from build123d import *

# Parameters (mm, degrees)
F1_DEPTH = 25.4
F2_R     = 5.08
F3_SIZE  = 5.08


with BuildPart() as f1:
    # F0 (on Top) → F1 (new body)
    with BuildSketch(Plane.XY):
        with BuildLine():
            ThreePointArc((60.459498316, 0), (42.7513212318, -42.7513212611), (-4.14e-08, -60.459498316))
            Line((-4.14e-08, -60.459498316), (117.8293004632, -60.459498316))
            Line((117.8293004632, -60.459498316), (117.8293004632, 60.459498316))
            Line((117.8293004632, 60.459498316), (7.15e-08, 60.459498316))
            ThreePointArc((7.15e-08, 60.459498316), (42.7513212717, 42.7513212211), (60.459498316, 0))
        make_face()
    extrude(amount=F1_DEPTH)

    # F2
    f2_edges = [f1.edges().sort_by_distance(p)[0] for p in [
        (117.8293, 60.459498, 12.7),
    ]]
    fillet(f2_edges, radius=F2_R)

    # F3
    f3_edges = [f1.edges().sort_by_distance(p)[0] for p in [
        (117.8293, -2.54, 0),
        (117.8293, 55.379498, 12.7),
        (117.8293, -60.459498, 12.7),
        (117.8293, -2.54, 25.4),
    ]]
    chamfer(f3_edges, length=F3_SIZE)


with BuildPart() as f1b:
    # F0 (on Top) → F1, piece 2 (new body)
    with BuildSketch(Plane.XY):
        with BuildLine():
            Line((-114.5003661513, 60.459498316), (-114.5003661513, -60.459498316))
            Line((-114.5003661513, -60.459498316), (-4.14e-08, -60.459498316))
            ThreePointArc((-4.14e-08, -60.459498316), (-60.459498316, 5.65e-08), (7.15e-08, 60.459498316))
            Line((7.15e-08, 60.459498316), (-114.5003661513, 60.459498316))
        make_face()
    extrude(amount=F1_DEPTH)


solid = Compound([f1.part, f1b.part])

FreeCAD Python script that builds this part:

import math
import FreeCAD as App
import Part
import Sketcher
from FreeCAD import Vector
Q = App.Units.Quantity


def edges_at(feature, points):
    """Names of the edges that pass closest to the given points."""
    edges = feature.Shape.Edges
    near = lambda p: min(range(len(edges)), key=lambda i: edges[i].distToShape(Part.Vertex(*p))[0])
    return sorted({f"Edge{near(p) + 1}" for p in points})

doc = App.newDocument("Part")
body = doc.addObject("PartDesign::Body", "Body")

sketch1 = body.newObject("Sketcher::SketchObject", "Sketch")
sketch1.AttachmentSupport = (doc.getObject("XY_Plane"), [""])
sketch1.MapMode = "FlatFace"
sketch1.addGeometry([
    Part.ArcOfCircle(Part.Circle(Vector(0, 0, 0), Vector(0, 0, 1), 60), math.radians(-90), math.radians(0)),
    Part.LineSegment(Vector(0, -60, 0), Vector(118, -60, 0)),
    Part.LineSegment(Vector(118, -60, 0), Vector(118, 60, 0)),
    Part.LineSegment(Vector(118, 60, 0), Vector(0, 60, 0)),
    Part.ArcOfCircle(Part.Circle(Vector(0, 0, 0), Vector(0, 0, 1), 60), math.radians(0), math.radians(90)),
], False)
sketch1.addConstraint([
    Sketcher.Constraint("Tangent", 0, 1, 1, 1),
    Sketcher.Constraint("Coincident", 1, 2, 2, 1),
    Sketcher.Constraint("Coincident", 2, 2, 3, 1),
    Sketcher.Constraint("Tangent", 3, 2, 4, 2),
    Sketcher.Constraint("Tangent", 4, 1, 0, 2),
    Sketcher.Constraint("Horizontal", 1),
    Sketcher.Constraint("Vertical", 2),
    Sketcher.Constraint("Horizontal", 3),
    Sketcher.Constraint("Coincident", 0, 3, -1, 1),
    Sketcher.Constraint("Equal", 0, 4),
    Sketcher.Constraint("PointOnObject", 4, 1, -1),
    Sketcher.Constraint("Radius", 0, Q("60.459498 mm")),
    Sketcher.Constraint("DistanceX", 1, 1, 1, 2, Q("117.829301 mm")),
])
pad1 = body.newObject("PartDesign::Pad", "Pad")
pad1.Profile = sketch1
pad1.Length = Q("1 in")
doc.recompute()

fillet = body.newObject("PartDesign::Fillet", "Fillet")
fillet.Base = (pad1, edges_at(pad1, [(117.829, 60.459, 12.7)]))
fillet.Radius = Q("0.2 in")
doc.recompute()

chamfer = body.newObject("PartDesign::Chamfer", "Chamfer")
chamfer.Base = (fillet, edges_at(fillet, [
    (117.829, -2.54, 0),
    (117.829, 55.379, 12.7),
    (117.829, -60.459, 12.7),
    (117.829, -2.54, 25.4),
]))
chamfer.Size = Q("0.2 in")
body2 = doc.addObject("PartDesign::Body", "Body001")

sketch2 = body2.newObject("Sketcher::SketchObject", "Sketch001")
sketch2.AttachmentSupport = (doc.getObject("XY_Plane001"), [""])
sketch2.MapMode = "FlatFace"
sketch2.addGeometry([
    Part.LineSegment(Vector(-115, 60, 0), Vector(-115, -60, 0)),
    Part.LineSegment(Vector(-115, -60, 0), Vector(0, -60, 0)),
    Part.ArcOfCircle(Part.Circle(Vector(0, 0, 0), Vector(0, 0, 1), 60), math.radians(90), math.radians(270)),
    Part.LineSegment(Vector(0, 60, 0), Vector(-115, 60, 0)),
], False)
sketch2.addConstraint([
    Sketcher.Constraint("Coincident", 0, 2, 1, 1),
    Sketcher.Constraint("Tangent", 1, 2, 2, 2),
    Sketcher.Constraint("Tangent", 2, 1, 3, 1),
    Sketcher.Constraint("Coincident", 3, 2, 0, 1),
    Sketcher.Constraint("Vertical", 0),
    Sketcher.Constraint("Horizontal", 1),
    Sketcher.Constraint("Horizontal", 3),
    Sketcher.Constraint("Coincident", 2, 3, -1, 1),
    Sketcher.Constraint("Radius", 2, Q("60.459498 mm")),
    Sketcher.Constraint("DistanceX", 1, 1, 1, 2, Q("114.500366 mm")),
])
pad2 = body2.newObject("PartDesign::Pad", "Pad001")
pad2.Profile = sketch2
pad2.Length = Q("1 in")

doc.recompute()
